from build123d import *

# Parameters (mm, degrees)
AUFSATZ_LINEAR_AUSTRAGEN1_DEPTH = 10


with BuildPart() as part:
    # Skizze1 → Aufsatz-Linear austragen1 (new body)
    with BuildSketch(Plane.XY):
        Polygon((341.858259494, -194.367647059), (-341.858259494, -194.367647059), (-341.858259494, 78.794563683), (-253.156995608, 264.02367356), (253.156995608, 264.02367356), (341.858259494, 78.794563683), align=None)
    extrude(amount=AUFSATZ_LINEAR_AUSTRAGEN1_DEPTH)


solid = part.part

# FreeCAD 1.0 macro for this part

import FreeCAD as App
import Part
import Sketcher
from FreeCAD import Vector
Q = App.Units.Quantity

doc = App.newDocument("Part")
body = doc.addObject("PartDesign::Body", "Body")

# Sketch on XY plane
sketch1 = body.newObject("Sketcher::SketchObject", "Sketch")
sketch1.AttachmentSupport = (doc.getObject("XY_Plane"), [""])
sketch1.MapMode = "FlatFace"
sketch1.addGeometry(Part.LineSegment(Vector(-341.858259, -194.367647, 0), Vector(341.858259, -194.367647, 0)), False)
sketch1.addGeometry(Part.LineSegment(Vector(341.858259, -194.367647, 0), Vector(341.858259, 78.794564, 0)), False)
sketch1.addGeometry(Part.LineSegment(Vector(341.858259, 78.794564, 0), Vector(253.156996, 264.023674, 0)), False)
sketch1.addGeometry(Part.LineSegment(Vector(253.156996, 264.023674, 0), Vector(-253.156996, 264.023674, 0)), False)
sketch1.addGeometry(Part.LineSegment(Vector(-253.156996, 264.023674, 0), Vector(-341.858259, 78.794564, 0)), False)
sketch1.addGeometry(Part.LineSegment(Vector(-341.858259, 78.794564, 0), Vector(-341.858259, -194.367647, 0)), False)
sketch1.addConstraint(Sketcher.Constraint("Coincident", 0, 2, 1, 1))
sketch1.addConstraint(Sketcher.Constraint("Coincident", 1, 2, 2, 1))
sketch1.addConstraint(Sketcher.Constraint("Coincident", 2, 2, 3, 1))
sketch1.addConstraint(Sketcher.Constraint("Coincident", 3, 2, 4, 1))
sketch1.addConstraint(Sketcher.Constraint("Coincident", 4, 2, 5, 1))
sketch1.addConstraint(Sketcher.Constraint("Coincident", 5, 2, 0, 1))
sketch1.addConstraint(Sketcher.Constraint("Horizontal", 0))
sketch1.addConstraint(Sketcher.Constraint("Vertical", 1))
sketch1.addConstraint(Sketcher.Constraint("Horizontal", 3))
sketch1.addConstraint(Sketcher.Constraint("Vertical", 5))
sketch1.addConstraint(Sketcher.Constraint("Symmetric", 1, 2, 4, 2, -2))
sketch1.addConstraint(Sketcher.Constraint("Equal", 2, 4))
sketch1.addConstraint(Sketcher.Constraint("DistanceX", 0, 1, 0, 2, Q("683.716519 mm")))
sketch1.addConstraint(Sketcher.Constraint("DistanceX", 3, 2, 3, 1, Q("506.313991 mm")))
sketch1.addConstraint(Sketcher.Constraint("DistanceY", 1, 1, 1, 2, Q("273.162211 mm")))
sketch1.addConstraint(Sketcher.Constraint("DistanceY", 1, 2, 2, 2, Q("185.22911 mm")))
sketch1.addConstraint(Sketcher.Constraint("DistanceY", 0, 2, -1, 1, Q("194.367647 mm")))
pad1 = body.newObject("PartDesign::Pad", "Pad")
pad1.Profile = sketch1
pad1.Length = 10

doc.recompute()
